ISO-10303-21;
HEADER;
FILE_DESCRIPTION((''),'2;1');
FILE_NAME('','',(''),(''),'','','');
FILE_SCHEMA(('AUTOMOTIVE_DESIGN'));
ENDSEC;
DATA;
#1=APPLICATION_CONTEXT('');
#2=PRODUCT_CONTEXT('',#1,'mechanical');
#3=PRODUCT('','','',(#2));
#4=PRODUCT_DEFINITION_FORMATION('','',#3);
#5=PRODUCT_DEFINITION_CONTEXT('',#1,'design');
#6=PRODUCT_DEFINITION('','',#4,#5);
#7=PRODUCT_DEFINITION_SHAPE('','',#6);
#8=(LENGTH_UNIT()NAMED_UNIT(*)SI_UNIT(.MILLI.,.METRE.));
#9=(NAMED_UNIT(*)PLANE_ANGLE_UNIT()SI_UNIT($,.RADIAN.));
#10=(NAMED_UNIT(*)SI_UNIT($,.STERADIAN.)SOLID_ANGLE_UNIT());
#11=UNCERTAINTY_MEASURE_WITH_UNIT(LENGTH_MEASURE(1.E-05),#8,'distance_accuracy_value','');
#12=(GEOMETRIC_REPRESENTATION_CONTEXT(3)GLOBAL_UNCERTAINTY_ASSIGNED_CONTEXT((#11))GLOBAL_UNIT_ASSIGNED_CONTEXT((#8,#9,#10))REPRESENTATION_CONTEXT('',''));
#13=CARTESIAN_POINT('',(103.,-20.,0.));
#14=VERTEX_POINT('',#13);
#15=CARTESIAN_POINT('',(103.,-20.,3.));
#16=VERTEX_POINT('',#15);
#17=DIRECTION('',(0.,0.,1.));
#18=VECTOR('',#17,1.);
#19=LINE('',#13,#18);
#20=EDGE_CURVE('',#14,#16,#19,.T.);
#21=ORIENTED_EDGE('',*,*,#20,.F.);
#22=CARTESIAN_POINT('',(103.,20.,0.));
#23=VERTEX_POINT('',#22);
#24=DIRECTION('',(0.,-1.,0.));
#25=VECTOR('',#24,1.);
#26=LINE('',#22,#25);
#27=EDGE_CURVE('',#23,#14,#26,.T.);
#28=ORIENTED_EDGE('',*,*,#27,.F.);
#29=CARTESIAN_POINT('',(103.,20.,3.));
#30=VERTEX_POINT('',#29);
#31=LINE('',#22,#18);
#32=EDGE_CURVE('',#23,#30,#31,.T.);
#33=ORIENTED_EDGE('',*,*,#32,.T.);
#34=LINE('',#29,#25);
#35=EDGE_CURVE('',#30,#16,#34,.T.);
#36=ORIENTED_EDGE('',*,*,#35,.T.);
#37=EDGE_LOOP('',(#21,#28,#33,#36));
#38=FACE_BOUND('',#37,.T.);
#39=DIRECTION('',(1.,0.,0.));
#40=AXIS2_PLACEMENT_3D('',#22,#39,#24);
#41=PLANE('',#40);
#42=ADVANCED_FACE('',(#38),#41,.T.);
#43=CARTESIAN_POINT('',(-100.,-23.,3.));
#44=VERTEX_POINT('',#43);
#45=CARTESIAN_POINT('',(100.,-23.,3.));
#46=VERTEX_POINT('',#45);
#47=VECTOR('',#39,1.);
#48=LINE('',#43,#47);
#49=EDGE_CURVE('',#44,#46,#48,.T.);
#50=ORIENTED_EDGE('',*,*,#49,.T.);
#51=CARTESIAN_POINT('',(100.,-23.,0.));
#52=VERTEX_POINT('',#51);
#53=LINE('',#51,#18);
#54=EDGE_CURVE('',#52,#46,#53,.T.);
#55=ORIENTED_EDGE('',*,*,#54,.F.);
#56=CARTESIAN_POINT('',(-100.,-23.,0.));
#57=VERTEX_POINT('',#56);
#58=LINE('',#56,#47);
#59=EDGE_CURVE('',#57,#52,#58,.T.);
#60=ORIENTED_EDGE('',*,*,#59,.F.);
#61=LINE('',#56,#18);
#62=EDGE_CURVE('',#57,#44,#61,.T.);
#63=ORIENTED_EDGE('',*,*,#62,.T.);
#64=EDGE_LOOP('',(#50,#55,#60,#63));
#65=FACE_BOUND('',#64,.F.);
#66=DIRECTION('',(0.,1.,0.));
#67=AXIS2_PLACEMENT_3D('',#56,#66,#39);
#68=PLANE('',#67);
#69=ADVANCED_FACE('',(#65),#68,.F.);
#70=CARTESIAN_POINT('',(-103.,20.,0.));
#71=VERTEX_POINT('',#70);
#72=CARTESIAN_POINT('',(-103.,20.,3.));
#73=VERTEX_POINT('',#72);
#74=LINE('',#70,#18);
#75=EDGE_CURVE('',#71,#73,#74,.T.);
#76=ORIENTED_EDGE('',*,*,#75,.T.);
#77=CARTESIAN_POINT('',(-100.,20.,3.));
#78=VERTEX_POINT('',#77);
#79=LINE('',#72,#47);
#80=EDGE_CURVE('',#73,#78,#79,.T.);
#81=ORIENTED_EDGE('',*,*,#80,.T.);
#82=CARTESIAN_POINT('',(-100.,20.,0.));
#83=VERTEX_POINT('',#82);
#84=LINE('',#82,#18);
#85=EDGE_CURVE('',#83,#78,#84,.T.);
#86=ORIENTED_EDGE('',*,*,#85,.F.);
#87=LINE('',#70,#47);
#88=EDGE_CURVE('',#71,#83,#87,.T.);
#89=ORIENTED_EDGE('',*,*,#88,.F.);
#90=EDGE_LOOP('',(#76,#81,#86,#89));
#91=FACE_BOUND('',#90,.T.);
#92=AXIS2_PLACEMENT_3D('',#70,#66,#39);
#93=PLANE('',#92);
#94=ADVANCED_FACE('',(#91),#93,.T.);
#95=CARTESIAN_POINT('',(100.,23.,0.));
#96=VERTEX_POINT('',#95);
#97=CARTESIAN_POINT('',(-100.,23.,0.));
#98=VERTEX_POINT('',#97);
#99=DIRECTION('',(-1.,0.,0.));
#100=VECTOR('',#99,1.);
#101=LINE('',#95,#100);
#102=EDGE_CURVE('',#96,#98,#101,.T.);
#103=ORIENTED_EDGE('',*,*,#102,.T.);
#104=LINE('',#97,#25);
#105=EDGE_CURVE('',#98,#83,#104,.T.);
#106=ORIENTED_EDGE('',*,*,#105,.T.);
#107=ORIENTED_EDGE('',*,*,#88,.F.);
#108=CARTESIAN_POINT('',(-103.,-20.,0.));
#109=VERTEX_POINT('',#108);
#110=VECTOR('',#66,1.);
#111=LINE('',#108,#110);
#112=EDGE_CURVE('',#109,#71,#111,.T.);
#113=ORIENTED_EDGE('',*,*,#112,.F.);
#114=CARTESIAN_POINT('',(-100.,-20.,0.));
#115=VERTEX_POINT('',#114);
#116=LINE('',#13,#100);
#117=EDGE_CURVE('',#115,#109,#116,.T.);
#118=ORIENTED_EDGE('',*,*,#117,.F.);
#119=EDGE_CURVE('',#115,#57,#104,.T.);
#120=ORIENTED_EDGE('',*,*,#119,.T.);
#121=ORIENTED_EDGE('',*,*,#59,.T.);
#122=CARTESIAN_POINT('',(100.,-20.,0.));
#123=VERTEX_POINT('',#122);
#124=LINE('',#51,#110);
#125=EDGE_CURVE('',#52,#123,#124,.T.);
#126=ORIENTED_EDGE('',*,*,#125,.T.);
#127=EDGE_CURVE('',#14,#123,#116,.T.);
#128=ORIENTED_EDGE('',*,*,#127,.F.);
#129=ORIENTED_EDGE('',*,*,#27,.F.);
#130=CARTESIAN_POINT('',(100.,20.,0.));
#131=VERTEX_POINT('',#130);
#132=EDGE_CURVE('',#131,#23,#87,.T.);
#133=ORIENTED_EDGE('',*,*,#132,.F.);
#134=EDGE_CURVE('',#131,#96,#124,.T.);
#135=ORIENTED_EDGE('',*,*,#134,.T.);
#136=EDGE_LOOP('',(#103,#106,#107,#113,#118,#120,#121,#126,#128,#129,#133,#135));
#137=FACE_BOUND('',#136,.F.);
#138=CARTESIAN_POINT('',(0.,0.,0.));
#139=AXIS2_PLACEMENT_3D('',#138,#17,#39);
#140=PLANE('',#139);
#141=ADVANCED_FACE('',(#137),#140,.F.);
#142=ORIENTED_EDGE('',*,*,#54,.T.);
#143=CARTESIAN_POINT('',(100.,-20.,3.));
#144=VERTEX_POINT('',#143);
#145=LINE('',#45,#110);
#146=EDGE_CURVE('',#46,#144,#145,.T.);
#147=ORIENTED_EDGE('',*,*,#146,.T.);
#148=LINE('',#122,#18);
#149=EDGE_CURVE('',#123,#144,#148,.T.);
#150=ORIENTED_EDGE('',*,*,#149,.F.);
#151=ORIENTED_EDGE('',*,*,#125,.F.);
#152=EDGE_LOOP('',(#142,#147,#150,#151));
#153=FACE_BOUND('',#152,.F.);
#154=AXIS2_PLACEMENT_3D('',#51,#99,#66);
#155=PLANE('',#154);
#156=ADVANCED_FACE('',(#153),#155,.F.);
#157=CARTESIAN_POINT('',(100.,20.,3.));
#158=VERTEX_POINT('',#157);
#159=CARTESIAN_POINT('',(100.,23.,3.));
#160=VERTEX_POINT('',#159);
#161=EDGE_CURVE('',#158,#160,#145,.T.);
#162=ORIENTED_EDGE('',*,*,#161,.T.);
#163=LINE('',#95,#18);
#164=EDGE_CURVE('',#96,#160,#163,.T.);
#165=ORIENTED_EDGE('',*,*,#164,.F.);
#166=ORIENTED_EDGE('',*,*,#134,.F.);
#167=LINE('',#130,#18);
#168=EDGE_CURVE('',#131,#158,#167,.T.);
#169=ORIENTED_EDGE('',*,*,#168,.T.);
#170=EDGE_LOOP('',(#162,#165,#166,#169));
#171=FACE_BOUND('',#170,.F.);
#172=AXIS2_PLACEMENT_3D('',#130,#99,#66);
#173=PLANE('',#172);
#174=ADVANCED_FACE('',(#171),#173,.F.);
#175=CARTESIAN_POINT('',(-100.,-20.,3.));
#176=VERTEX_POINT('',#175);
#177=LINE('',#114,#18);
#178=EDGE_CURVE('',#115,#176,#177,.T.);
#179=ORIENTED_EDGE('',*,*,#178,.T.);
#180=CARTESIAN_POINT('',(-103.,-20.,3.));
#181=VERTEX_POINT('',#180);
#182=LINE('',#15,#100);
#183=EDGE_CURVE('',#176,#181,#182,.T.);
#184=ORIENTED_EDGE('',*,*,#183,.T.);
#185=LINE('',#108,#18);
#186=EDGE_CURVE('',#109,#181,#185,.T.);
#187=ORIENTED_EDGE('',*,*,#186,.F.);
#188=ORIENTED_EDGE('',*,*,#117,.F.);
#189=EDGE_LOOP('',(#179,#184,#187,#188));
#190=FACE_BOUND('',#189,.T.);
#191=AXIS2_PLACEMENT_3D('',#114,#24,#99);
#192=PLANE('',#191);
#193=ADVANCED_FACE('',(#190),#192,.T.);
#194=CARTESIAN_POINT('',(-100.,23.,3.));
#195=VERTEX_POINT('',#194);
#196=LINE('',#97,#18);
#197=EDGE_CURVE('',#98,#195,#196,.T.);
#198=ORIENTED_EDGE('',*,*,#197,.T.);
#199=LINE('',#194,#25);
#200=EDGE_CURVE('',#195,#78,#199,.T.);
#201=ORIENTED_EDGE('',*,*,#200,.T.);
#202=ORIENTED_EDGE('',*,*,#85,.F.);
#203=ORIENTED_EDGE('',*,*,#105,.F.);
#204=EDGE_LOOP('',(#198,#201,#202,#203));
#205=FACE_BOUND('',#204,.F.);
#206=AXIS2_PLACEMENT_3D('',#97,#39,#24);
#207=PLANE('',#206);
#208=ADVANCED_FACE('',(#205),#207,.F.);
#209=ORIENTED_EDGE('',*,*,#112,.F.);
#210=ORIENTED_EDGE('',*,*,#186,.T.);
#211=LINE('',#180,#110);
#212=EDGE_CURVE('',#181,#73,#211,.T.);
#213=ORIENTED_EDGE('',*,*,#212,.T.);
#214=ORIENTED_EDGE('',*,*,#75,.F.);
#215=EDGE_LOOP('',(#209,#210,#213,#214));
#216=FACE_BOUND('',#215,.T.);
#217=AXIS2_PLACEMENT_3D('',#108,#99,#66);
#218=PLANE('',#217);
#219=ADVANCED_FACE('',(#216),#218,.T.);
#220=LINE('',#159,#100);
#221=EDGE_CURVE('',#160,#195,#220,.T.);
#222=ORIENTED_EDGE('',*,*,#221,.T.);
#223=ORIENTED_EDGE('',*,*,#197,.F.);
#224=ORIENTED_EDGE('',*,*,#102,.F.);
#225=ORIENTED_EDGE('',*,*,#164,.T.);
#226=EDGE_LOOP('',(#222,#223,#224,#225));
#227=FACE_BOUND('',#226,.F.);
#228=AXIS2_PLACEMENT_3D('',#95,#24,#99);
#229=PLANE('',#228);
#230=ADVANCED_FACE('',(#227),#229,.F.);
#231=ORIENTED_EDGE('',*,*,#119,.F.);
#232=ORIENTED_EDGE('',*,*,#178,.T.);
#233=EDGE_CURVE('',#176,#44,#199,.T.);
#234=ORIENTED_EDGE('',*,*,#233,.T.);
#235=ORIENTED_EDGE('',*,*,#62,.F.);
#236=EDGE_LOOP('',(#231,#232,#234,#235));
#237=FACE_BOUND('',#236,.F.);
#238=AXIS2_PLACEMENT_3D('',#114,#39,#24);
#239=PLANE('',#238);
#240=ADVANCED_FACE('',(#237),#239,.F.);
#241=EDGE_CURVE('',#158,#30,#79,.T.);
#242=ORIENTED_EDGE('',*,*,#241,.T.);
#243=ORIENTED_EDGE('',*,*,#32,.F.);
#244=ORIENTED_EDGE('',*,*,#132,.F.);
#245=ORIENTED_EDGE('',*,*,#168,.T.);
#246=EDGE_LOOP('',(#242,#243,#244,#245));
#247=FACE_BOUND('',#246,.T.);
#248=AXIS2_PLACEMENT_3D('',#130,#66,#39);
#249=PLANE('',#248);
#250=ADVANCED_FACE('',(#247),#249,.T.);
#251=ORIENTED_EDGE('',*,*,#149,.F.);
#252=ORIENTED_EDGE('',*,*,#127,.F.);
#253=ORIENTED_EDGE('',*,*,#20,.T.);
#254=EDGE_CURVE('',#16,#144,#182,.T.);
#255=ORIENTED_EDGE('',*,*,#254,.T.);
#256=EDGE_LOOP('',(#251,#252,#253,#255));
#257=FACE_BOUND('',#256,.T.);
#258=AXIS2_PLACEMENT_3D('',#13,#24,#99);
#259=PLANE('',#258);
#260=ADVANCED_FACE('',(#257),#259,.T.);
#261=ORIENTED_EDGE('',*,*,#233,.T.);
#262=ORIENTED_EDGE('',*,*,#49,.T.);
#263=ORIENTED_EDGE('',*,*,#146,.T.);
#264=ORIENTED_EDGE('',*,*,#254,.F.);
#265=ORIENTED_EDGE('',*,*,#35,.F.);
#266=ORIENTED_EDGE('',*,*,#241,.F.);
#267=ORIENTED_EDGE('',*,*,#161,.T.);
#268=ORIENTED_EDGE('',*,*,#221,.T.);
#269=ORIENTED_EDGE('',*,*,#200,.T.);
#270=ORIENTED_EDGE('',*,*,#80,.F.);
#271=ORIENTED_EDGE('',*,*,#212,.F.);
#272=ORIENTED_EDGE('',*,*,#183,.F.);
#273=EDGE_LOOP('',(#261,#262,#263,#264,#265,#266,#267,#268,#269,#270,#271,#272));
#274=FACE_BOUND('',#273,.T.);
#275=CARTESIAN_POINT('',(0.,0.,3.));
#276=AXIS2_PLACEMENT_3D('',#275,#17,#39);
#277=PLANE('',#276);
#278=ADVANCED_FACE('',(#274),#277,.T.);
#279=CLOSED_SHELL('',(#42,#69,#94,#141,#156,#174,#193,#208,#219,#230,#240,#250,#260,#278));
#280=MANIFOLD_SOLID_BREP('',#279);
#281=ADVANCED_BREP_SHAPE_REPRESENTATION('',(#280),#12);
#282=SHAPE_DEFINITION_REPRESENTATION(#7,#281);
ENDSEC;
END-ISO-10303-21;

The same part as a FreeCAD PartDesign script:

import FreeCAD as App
import Part
import Sketcher

V = App.Vector

doc = App.newDocument("Part")
body = doc.addObject("PartDesign::Body", "Body")

sketch1 = doc.addObject("Sketcher::SketchObject", "Sketch")
body.addObject(sketch1)
sketch1.AttachmentSupport = (doc.XY_Plane, [""])
sketch1.MapMode = "FlatFace"
sketch1.addGeometry([
    Part.LineSegment(V(100, 20, 0), V(100, 23, 0)),
    Part.LineSegment(V(100, 23, 0), V(-100, 23, 0)),
    Part.LineSegment(V(-100, 23, 0), V(-100, 20, 0)),
    Part.LineSegment(V(-100, 20, 0), V(-103, 20, 0)),
    Part.LineSegment(V(-103, 20, 0), V(-103, -20, 0)),
    Part.LineSegment(V(-103, -20, 0), V(-100, -20, 0)),
    Part.LineSegment(V(-100, -20, 0), V(-100, -23, 0)),
    Part.LineSegment(V(-100, -23, 0), V(100, -23, 0)),
    Part.LineSegment(V(100, -23, 0), V(100, -20, 0)),
    Part.LineSegment(V(100, -20, 0), V(103, -20, 0)),
    Part.LineSegment(V(103, -20, 0), V(103, 20, 0)),
    Part.LineSegment(V(103, 20, 0), V(100, 20, 0)),
], False)
sketch1.addConstraint([
    Sketcher.Constraint("Coincident", 0, 2, 1, 1),
    Sketcher.Constraint("Coincident", 1, 2, 2, 1),
    Sketcher.Constraint("Coincident", 2, 2, 3, 1),
    Sketcher.Constraint("Coincident", 3, 2, 4, 1),
    Sketcher.Constraint("Coincident", 4, 2, 5, 1),
    Sketcher.Constraint("Coincident", 5, 2, 6, 1),
    Sketcher.Constraint("Coincident", 6, 2, 7, 1),
    Sketcher.Constraint("Coincident", 7, 2, 8, 1),
    Sketcher.Constraint("Coincident", 8, 2, 9, 1),
    Sketcher.Constraint("Coincident", 9, 2, 10, 1),
    Sketcher.Constraint("Coincident", 10, 2, 11, 1),
    Sketcher.Constraint("Coincident", 11, 2, 0, 1),
    Sketcher.Constraint("Vertical", 0),
    Sketcher.Constraint("Horizontal", 1),
    Sketcher.Constraint("Vertical", 2),
    Sketcher.Constraint("Horizontal", 3),
    Sketcher.Constraint("Vertical", 4),
    Sketcher.Constraint("Horizontal", 5),
    Sketcher.Constraint("Vertical", 6),
    Sketcher.Constraint("Horizontal", 7),
    Sketcher.Constraint("Vertical", 8),
    Sketcher.Constraint("Horizontal", 9),
    Sketcher.Constraint("Vertical", 10),
    Sketcher.Constraint("Horizontal", 11),
    Sketcher.Constraint("Symmetric", 0, 2, 6, 2, -1, 1),
    Sketcher.Constraint("Symmetric", 2, 2, 8, 2, -1, 1),
    Sketcher.Constraint("Symmetric", 4, 2, 10, 2, -1, 1),
    Sketcher.Constraint("Symmetric", 5, 2, 8, 2, -2),
    Sketcher.Constraint("Equal", 11, 0),
    Sketcher.Constraint("DistanceX", 1, 2, 1, 1, 200.0),
    Sketcher.Constraint("DistanceY", 4, 2, 4, 1, 40.0),
    Sketcher.Constraint("DistanceY", 6, 2, 1, 2, 46.0),
])
pad1 = doc.addObject("PartDesign::Pad", "Pad")
body.addObject(pad1)
pad1.Profile = sketch1
pad1.Length = 3

doc.recompute()
